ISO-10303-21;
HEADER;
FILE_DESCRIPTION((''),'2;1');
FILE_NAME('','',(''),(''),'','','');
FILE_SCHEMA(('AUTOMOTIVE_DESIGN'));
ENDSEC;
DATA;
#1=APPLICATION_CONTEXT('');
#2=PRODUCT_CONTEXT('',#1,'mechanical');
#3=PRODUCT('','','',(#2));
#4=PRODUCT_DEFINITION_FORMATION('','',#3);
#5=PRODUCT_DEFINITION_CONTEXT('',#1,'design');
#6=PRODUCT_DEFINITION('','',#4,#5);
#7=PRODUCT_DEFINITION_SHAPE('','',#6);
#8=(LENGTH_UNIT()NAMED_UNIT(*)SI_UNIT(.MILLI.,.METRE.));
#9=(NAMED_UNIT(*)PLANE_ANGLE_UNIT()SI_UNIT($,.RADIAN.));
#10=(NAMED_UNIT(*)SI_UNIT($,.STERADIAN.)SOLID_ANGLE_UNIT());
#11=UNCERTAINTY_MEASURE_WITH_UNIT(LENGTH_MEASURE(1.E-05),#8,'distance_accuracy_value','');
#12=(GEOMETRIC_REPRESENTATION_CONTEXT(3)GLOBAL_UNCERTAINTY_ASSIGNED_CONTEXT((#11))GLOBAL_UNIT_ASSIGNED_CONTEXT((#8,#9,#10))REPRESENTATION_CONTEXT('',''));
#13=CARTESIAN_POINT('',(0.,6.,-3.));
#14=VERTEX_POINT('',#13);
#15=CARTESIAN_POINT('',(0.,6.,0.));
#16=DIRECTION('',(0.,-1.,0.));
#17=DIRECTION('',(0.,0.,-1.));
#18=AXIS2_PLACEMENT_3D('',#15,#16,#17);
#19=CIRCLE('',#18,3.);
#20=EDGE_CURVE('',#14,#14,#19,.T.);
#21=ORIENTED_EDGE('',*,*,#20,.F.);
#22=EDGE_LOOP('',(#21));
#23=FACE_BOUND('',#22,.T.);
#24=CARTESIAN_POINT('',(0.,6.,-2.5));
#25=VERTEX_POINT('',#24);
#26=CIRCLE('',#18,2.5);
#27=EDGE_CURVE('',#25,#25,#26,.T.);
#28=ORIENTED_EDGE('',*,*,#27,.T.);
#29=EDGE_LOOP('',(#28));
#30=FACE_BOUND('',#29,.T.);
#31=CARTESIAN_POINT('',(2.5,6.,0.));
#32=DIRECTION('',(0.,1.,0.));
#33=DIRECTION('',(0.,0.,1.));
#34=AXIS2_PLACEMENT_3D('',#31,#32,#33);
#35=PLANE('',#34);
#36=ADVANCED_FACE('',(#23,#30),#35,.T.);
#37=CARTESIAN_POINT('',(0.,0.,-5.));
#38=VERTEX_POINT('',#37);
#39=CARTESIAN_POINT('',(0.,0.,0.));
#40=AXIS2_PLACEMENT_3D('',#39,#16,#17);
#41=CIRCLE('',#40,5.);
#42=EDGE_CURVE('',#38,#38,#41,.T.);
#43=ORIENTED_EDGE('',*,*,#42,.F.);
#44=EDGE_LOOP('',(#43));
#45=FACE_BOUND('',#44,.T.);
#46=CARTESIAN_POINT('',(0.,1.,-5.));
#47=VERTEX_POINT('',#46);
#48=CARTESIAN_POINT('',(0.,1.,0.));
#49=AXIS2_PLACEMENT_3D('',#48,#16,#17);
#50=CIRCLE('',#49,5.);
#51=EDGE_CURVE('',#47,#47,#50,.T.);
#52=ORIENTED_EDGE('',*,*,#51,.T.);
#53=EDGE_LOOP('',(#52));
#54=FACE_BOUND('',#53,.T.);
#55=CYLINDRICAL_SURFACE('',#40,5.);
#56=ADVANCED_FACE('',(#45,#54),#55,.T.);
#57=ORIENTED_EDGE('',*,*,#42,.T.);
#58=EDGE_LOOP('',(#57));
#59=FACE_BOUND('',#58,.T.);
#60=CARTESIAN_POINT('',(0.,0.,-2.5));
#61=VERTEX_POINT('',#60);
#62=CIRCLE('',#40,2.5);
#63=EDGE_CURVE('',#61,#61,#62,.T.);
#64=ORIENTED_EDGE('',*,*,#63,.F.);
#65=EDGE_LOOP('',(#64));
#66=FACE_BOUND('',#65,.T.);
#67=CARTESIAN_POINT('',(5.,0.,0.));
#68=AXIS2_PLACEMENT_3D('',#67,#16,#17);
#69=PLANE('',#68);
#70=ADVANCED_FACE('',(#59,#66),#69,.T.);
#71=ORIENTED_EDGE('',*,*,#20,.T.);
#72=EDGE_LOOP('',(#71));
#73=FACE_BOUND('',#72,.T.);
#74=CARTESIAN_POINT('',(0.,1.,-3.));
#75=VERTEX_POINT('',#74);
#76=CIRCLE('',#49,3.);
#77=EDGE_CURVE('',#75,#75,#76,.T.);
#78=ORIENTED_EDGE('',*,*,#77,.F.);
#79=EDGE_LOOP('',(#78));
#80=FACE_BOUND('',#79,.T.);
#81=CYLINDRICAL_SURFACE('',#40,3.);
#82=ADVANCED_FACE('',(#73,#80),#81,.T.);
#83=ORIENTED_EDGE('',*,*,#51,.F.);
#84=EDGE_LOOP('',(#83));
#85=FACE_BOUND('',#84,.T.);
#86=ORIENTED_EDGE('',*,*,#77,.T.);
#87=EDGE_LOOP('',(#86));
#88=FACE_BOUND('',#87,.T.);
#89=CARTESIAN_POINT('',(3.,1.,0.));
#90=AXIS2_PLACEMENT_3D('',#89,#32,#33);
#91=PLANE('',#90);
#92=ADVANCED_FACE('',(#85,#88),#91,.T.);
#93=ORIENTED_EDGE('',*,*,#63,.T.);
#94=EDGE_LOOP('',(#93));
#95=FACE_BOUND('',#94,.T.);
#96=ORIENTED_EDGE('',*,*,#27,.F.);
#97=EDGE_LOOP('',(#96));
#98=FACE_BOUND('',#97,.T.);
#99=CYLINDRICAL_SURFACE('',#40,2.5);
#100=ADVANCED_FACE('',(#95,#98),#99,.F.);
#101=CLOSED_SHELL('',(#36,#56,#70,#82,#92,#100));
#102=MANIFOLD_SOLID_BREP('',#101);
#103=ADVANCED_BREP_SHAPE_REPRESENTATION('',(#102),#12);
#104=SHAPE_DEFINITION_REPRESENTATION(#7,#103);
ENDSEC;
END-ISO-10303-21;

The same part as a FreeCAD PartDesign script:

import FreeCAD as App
import Part
import Sketcher


def add_polygon(sketch, points):
    """Adds a closed chain of lines whose ends are joined by coincident constraints."""
    first, n = sketch.GeometryCount, len(points)
    for a, b in zip(points, points[1:] + points[:1]):
        sketch.addGeometry(Part.LineSegment(App.Vector(*a, 0), App.Vector(*b, 0)), False)
    for i in range(n):
        sketch.addConstraint(Sketcher.Constraint("Coincident", first + i, 2, first + (i + 1) % n, 1))

doc = App.newDocument("Part")
body = doc.addObject("PartDesign::Body", "Body")

sketch1 = body.newObject("Sketcher::SketchObject", "Sketch")
sketch1.AttachmentSupport = (doc.getObject("XY_Plane"), [""])
sketch1.MapMode = "FlatFace"
add_polygon(sketch1, [(2.5, 6), (2.5, 0), (5, 0), (5, 1), (3, 1), (3, 6)])
sketch1.addConstraint(Sketcher.Constraint("Vertical", 0))
sketch1.addConstraint(Sketcher.Constraint("Horizontal", 1))
sketch1.addConstraint(Sketcher.Constraint("Vertical", 2))
sketch1.addConstraint(Sketcher.Constraint("Horizontal", 3))
sketch1.addConstraint(Sketcher.Constraint("Vertical", 4))
sketch1.addConstraint(Sketcher.Constraint("Horizontal", 5))
sketch1.addConstraint(Sketcher.Constraint("PointOnObject", 0, 2, -1))
sketch1.addConstraint(Sketcher.Constraint("DistanceX", 3, 2, 3, 1, 2.0))
sketch1.addConstraint(Sketcher.Constraint("DistanceY", 0, 2, 0, 1, 6.0))
sketch1.addConstraint(Sketcher.Constraint("DistanceY", 2, 1, 2, 2, 1.0))
sketch1.addConstraint(Sketcher.Constraint("DistanceX", 1, 1, 1, 2, 2.5))
sketch1.addConstraint(Sketcher.Constraint("DistanceX", -1, 1, 1, 2, 5.0))
revolution = body.newObject("PartDesign::Revolution", "Revolution")
revolution.Profile = sketch1
revolution.ReferenceAxis = (sketch1, ["V_Axis"])
revolution.Angle = 360

doc.recompute()
